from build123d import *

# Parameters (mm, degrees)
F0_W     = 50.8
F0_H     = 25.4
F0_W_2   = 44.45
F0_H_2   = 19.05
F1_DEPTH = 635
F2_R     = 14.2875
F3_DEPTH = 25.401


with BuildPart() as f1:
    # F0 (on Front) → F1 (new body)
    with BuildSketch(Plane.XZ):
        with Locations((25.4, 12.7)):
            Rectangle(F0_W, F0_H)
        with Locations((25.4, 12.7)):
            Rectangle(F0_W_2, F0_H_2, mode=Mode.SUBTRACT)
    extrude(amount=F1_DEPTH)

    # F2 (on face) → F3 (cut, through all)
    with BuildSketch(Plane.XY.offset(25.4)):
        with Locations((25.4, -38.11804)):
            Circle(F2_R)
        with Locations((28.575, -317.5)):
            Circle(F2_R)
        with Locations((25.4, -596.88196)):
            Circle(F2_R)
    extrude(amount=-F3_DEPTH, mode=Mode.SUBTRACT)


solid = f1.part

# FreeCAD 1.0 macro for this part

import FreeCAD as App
import Part
import Sketcher
from FreeCAD import Vector
Q = App.Units.Quantity

doc = App.newDocument("Part")
params = doc.addObject("Spreadsheet::Sheet", "Params")
for row, (alias, value) in enumerate([
    ("sketch1_width", "2 in"),
    ("sketch1_height", "1 in"),
    ("sketch1_width2", "1.75 in"),
    ("sketch1_height2", "0.75 in"),
    ("pad1_length", "25 in"),
    ("sketch2_diameter", "1.125 in"),
], start=1):
    params.set(f"A{row}", alias)
    params.set(f"B{row}", "=" + value)
    params.setAlias(f"B{row}", alias)

body = doc.addObject("PartDesign::Body", "Body")

# Sketch on XZ plane
sketch1 = body.newObject("Sketcher::SketchObject", "Sketch")
sketch1.AttachmentSupport = (doc.getObject("XZ_Plane"), [""])
sketch1.MapMode = "FlatFace"
sketch1.addGeometry([
    Part.LineSegment(Vector(0, 25.4, 0), Vector(0, 0, 0)),  # 0
    Part.LineSegment(Vector(0, 0, 0), Vector(50.8, 0, 0)),  # 1
    Part.LineSegment(Vector(50.8, 0, 0), Vector(50.8, 25.4, 0)),  # 2
    Part.LineSegment(Vector(50.8, 25.4, 0), Vector(0, 25.4, 0)),  # 3
    Part.LineSegment(Vector(47.625, 3.175, 0), Vector(3.175, 3.175, 0)),  # 4
    Part.LineSegment(Vector(3.175, 3.175, 0), Vector(3.175, 22.225, 0)),  # 5
    Part.LineSegment(Vector(3.175, 22.225, 0), Vector(47.625, 22.225, 0)),  # 6
    Part.LineSegment(Vector(47.625, 22.225, 0), Vector(47.625, 3.175, 0)),  # 7
], False)
sketch1.addConstraint([
    Sketcher.Constraint("Coincident", 0, 2, 1, 1),
    Sketcher.Constraint("Coincident", 1, 2, 2, 1),
    Sketcher.Constraint("Coincident", 2, 2, 3, 1),
    Sketcher.Constraint("Coincident", 3, 2, 0, 1),
    Sketcher.Constraint("Coincident", 4, 2, 5, 1),
    Sketcher.Constraint("Coincident", 5, 2, 6, 1),
    Sketcher.Constraint("Coincident", 6, 2, 7, 1),
    Sketcher.Constraint("Coincident", 7, 2, 4, 1),
    Sketcher.Constraint("Vertical", 0),
    Sketcher.Constraint("Horizontal", 1),
    Sketcher.Constraint("Vertical", 2),
    Sketcher.Constraint("Horizontal", 3),
    Sketcher.Constraint("Horizontal", 4),
    Sketcher.Constraint("Vertical", 5),
    Sketcher.Constraint("Horizontal", 6),
    Sketcher.Constraint("Vertical", 7),
    Sketcher.Constraint("Coincident", 0, 2, -1, 1),
    Sketcher.Constraint("DistanceX", 1, 1, 1, 2, Q("2 in")),
    Sketcher.Constraint("DistanceY", 0, 2, 0, 1, Q("1 in")),
    Sketcher.Constraint("DistanceX", 4, 2, 4, 1, Q("1.75 in")),
    Sketcher.Constraint("DistanceY", 5, 1, 5, 2, Q("0.75 in")),
    Sketcher.Constraint("DistanceX", -1, 1, 4, 2, Q("0.125 in")),
    Sketcher.Constraint("DistanceY", -1, 1, 4, 2, Q("0.125 in")),
])
sketch1.setExpression("Constraints[17]", "Params.sketch1_width")
sketch1.setExpression("Constraints[18]", "Params.sketch1_height")
sketch1.setExpression("Constraints[19]", "Params.sketch1_width2")
sketch1.setExpression("Constraints[20]", "Params.sketch1_height2")
pad1 = body.newObject("PartDesign::Pad", "Pad")
pad1.Profile = sketch1
pad1.setExpression("Length", "Params.pad1_length")

# Sketch on XY plane
sketch2 = body.newObject("Sketcher::SketchObject", "Sketch001")
sketch2.AttachmentSupport = (doc.getObject("XY_Plane"), [""])
sketch2.MapMode = "FlatFace"
sketch2.AttachmentOffset = App.Placement(Vector(0, 0, 1 * 25.4), App.Rotation())
sketch2.addGeometry([
    Part.Circle(Vector(25.4, -38.11804, 0), Vector(0, 0, 1), 14.2875),
    Part.Circle(Vector(28.575, -317.5, 0), Vector(0, 0, 1), 14.2875),
    Part.Circle(Vector(25.4, -596.88196, 0), Vector(0, 0, 1), 14.2875),
], False)
sketch2.addConstraint([
    Sketcher.Constraint("Equal", 0, 1),
    Sketcher.Constraint("Equal", 1, 2),
    Sketcher.Constraint("Vertical", 0, 3, 2, 3),
    Sketcher.Constraint("Diameter", 0, Q("1.125 in")),
    Sketcher.Constraint("DistanceX", -1, 1, 0, 3, Q("1 in")),
    Sketcher.Constraint("DistanceY", 1, 3, -1, 1, Q("12.5 in")),
    Sketcher.Constraint("DistanceX", -1, 1, 1, 3, Q("1.125 in")),
    Sketcher.Constraint("DistanceY", 0, 3, -1, 1, Q("38.11804 mm")),
    Sketcher.Constraint("DistanceY", 2, 3, -1, 1, Q("596.88196 mm")),
])
sketch2.setExpression("Constraints[3]", "Params.sketch2_diameter")
pocket1 = body.newObject("PartDesign::Pocket", "Pocket")
pocket1.Profile = sketch2
pocket1.Type = "ThroughAll"

doc.recompute()
